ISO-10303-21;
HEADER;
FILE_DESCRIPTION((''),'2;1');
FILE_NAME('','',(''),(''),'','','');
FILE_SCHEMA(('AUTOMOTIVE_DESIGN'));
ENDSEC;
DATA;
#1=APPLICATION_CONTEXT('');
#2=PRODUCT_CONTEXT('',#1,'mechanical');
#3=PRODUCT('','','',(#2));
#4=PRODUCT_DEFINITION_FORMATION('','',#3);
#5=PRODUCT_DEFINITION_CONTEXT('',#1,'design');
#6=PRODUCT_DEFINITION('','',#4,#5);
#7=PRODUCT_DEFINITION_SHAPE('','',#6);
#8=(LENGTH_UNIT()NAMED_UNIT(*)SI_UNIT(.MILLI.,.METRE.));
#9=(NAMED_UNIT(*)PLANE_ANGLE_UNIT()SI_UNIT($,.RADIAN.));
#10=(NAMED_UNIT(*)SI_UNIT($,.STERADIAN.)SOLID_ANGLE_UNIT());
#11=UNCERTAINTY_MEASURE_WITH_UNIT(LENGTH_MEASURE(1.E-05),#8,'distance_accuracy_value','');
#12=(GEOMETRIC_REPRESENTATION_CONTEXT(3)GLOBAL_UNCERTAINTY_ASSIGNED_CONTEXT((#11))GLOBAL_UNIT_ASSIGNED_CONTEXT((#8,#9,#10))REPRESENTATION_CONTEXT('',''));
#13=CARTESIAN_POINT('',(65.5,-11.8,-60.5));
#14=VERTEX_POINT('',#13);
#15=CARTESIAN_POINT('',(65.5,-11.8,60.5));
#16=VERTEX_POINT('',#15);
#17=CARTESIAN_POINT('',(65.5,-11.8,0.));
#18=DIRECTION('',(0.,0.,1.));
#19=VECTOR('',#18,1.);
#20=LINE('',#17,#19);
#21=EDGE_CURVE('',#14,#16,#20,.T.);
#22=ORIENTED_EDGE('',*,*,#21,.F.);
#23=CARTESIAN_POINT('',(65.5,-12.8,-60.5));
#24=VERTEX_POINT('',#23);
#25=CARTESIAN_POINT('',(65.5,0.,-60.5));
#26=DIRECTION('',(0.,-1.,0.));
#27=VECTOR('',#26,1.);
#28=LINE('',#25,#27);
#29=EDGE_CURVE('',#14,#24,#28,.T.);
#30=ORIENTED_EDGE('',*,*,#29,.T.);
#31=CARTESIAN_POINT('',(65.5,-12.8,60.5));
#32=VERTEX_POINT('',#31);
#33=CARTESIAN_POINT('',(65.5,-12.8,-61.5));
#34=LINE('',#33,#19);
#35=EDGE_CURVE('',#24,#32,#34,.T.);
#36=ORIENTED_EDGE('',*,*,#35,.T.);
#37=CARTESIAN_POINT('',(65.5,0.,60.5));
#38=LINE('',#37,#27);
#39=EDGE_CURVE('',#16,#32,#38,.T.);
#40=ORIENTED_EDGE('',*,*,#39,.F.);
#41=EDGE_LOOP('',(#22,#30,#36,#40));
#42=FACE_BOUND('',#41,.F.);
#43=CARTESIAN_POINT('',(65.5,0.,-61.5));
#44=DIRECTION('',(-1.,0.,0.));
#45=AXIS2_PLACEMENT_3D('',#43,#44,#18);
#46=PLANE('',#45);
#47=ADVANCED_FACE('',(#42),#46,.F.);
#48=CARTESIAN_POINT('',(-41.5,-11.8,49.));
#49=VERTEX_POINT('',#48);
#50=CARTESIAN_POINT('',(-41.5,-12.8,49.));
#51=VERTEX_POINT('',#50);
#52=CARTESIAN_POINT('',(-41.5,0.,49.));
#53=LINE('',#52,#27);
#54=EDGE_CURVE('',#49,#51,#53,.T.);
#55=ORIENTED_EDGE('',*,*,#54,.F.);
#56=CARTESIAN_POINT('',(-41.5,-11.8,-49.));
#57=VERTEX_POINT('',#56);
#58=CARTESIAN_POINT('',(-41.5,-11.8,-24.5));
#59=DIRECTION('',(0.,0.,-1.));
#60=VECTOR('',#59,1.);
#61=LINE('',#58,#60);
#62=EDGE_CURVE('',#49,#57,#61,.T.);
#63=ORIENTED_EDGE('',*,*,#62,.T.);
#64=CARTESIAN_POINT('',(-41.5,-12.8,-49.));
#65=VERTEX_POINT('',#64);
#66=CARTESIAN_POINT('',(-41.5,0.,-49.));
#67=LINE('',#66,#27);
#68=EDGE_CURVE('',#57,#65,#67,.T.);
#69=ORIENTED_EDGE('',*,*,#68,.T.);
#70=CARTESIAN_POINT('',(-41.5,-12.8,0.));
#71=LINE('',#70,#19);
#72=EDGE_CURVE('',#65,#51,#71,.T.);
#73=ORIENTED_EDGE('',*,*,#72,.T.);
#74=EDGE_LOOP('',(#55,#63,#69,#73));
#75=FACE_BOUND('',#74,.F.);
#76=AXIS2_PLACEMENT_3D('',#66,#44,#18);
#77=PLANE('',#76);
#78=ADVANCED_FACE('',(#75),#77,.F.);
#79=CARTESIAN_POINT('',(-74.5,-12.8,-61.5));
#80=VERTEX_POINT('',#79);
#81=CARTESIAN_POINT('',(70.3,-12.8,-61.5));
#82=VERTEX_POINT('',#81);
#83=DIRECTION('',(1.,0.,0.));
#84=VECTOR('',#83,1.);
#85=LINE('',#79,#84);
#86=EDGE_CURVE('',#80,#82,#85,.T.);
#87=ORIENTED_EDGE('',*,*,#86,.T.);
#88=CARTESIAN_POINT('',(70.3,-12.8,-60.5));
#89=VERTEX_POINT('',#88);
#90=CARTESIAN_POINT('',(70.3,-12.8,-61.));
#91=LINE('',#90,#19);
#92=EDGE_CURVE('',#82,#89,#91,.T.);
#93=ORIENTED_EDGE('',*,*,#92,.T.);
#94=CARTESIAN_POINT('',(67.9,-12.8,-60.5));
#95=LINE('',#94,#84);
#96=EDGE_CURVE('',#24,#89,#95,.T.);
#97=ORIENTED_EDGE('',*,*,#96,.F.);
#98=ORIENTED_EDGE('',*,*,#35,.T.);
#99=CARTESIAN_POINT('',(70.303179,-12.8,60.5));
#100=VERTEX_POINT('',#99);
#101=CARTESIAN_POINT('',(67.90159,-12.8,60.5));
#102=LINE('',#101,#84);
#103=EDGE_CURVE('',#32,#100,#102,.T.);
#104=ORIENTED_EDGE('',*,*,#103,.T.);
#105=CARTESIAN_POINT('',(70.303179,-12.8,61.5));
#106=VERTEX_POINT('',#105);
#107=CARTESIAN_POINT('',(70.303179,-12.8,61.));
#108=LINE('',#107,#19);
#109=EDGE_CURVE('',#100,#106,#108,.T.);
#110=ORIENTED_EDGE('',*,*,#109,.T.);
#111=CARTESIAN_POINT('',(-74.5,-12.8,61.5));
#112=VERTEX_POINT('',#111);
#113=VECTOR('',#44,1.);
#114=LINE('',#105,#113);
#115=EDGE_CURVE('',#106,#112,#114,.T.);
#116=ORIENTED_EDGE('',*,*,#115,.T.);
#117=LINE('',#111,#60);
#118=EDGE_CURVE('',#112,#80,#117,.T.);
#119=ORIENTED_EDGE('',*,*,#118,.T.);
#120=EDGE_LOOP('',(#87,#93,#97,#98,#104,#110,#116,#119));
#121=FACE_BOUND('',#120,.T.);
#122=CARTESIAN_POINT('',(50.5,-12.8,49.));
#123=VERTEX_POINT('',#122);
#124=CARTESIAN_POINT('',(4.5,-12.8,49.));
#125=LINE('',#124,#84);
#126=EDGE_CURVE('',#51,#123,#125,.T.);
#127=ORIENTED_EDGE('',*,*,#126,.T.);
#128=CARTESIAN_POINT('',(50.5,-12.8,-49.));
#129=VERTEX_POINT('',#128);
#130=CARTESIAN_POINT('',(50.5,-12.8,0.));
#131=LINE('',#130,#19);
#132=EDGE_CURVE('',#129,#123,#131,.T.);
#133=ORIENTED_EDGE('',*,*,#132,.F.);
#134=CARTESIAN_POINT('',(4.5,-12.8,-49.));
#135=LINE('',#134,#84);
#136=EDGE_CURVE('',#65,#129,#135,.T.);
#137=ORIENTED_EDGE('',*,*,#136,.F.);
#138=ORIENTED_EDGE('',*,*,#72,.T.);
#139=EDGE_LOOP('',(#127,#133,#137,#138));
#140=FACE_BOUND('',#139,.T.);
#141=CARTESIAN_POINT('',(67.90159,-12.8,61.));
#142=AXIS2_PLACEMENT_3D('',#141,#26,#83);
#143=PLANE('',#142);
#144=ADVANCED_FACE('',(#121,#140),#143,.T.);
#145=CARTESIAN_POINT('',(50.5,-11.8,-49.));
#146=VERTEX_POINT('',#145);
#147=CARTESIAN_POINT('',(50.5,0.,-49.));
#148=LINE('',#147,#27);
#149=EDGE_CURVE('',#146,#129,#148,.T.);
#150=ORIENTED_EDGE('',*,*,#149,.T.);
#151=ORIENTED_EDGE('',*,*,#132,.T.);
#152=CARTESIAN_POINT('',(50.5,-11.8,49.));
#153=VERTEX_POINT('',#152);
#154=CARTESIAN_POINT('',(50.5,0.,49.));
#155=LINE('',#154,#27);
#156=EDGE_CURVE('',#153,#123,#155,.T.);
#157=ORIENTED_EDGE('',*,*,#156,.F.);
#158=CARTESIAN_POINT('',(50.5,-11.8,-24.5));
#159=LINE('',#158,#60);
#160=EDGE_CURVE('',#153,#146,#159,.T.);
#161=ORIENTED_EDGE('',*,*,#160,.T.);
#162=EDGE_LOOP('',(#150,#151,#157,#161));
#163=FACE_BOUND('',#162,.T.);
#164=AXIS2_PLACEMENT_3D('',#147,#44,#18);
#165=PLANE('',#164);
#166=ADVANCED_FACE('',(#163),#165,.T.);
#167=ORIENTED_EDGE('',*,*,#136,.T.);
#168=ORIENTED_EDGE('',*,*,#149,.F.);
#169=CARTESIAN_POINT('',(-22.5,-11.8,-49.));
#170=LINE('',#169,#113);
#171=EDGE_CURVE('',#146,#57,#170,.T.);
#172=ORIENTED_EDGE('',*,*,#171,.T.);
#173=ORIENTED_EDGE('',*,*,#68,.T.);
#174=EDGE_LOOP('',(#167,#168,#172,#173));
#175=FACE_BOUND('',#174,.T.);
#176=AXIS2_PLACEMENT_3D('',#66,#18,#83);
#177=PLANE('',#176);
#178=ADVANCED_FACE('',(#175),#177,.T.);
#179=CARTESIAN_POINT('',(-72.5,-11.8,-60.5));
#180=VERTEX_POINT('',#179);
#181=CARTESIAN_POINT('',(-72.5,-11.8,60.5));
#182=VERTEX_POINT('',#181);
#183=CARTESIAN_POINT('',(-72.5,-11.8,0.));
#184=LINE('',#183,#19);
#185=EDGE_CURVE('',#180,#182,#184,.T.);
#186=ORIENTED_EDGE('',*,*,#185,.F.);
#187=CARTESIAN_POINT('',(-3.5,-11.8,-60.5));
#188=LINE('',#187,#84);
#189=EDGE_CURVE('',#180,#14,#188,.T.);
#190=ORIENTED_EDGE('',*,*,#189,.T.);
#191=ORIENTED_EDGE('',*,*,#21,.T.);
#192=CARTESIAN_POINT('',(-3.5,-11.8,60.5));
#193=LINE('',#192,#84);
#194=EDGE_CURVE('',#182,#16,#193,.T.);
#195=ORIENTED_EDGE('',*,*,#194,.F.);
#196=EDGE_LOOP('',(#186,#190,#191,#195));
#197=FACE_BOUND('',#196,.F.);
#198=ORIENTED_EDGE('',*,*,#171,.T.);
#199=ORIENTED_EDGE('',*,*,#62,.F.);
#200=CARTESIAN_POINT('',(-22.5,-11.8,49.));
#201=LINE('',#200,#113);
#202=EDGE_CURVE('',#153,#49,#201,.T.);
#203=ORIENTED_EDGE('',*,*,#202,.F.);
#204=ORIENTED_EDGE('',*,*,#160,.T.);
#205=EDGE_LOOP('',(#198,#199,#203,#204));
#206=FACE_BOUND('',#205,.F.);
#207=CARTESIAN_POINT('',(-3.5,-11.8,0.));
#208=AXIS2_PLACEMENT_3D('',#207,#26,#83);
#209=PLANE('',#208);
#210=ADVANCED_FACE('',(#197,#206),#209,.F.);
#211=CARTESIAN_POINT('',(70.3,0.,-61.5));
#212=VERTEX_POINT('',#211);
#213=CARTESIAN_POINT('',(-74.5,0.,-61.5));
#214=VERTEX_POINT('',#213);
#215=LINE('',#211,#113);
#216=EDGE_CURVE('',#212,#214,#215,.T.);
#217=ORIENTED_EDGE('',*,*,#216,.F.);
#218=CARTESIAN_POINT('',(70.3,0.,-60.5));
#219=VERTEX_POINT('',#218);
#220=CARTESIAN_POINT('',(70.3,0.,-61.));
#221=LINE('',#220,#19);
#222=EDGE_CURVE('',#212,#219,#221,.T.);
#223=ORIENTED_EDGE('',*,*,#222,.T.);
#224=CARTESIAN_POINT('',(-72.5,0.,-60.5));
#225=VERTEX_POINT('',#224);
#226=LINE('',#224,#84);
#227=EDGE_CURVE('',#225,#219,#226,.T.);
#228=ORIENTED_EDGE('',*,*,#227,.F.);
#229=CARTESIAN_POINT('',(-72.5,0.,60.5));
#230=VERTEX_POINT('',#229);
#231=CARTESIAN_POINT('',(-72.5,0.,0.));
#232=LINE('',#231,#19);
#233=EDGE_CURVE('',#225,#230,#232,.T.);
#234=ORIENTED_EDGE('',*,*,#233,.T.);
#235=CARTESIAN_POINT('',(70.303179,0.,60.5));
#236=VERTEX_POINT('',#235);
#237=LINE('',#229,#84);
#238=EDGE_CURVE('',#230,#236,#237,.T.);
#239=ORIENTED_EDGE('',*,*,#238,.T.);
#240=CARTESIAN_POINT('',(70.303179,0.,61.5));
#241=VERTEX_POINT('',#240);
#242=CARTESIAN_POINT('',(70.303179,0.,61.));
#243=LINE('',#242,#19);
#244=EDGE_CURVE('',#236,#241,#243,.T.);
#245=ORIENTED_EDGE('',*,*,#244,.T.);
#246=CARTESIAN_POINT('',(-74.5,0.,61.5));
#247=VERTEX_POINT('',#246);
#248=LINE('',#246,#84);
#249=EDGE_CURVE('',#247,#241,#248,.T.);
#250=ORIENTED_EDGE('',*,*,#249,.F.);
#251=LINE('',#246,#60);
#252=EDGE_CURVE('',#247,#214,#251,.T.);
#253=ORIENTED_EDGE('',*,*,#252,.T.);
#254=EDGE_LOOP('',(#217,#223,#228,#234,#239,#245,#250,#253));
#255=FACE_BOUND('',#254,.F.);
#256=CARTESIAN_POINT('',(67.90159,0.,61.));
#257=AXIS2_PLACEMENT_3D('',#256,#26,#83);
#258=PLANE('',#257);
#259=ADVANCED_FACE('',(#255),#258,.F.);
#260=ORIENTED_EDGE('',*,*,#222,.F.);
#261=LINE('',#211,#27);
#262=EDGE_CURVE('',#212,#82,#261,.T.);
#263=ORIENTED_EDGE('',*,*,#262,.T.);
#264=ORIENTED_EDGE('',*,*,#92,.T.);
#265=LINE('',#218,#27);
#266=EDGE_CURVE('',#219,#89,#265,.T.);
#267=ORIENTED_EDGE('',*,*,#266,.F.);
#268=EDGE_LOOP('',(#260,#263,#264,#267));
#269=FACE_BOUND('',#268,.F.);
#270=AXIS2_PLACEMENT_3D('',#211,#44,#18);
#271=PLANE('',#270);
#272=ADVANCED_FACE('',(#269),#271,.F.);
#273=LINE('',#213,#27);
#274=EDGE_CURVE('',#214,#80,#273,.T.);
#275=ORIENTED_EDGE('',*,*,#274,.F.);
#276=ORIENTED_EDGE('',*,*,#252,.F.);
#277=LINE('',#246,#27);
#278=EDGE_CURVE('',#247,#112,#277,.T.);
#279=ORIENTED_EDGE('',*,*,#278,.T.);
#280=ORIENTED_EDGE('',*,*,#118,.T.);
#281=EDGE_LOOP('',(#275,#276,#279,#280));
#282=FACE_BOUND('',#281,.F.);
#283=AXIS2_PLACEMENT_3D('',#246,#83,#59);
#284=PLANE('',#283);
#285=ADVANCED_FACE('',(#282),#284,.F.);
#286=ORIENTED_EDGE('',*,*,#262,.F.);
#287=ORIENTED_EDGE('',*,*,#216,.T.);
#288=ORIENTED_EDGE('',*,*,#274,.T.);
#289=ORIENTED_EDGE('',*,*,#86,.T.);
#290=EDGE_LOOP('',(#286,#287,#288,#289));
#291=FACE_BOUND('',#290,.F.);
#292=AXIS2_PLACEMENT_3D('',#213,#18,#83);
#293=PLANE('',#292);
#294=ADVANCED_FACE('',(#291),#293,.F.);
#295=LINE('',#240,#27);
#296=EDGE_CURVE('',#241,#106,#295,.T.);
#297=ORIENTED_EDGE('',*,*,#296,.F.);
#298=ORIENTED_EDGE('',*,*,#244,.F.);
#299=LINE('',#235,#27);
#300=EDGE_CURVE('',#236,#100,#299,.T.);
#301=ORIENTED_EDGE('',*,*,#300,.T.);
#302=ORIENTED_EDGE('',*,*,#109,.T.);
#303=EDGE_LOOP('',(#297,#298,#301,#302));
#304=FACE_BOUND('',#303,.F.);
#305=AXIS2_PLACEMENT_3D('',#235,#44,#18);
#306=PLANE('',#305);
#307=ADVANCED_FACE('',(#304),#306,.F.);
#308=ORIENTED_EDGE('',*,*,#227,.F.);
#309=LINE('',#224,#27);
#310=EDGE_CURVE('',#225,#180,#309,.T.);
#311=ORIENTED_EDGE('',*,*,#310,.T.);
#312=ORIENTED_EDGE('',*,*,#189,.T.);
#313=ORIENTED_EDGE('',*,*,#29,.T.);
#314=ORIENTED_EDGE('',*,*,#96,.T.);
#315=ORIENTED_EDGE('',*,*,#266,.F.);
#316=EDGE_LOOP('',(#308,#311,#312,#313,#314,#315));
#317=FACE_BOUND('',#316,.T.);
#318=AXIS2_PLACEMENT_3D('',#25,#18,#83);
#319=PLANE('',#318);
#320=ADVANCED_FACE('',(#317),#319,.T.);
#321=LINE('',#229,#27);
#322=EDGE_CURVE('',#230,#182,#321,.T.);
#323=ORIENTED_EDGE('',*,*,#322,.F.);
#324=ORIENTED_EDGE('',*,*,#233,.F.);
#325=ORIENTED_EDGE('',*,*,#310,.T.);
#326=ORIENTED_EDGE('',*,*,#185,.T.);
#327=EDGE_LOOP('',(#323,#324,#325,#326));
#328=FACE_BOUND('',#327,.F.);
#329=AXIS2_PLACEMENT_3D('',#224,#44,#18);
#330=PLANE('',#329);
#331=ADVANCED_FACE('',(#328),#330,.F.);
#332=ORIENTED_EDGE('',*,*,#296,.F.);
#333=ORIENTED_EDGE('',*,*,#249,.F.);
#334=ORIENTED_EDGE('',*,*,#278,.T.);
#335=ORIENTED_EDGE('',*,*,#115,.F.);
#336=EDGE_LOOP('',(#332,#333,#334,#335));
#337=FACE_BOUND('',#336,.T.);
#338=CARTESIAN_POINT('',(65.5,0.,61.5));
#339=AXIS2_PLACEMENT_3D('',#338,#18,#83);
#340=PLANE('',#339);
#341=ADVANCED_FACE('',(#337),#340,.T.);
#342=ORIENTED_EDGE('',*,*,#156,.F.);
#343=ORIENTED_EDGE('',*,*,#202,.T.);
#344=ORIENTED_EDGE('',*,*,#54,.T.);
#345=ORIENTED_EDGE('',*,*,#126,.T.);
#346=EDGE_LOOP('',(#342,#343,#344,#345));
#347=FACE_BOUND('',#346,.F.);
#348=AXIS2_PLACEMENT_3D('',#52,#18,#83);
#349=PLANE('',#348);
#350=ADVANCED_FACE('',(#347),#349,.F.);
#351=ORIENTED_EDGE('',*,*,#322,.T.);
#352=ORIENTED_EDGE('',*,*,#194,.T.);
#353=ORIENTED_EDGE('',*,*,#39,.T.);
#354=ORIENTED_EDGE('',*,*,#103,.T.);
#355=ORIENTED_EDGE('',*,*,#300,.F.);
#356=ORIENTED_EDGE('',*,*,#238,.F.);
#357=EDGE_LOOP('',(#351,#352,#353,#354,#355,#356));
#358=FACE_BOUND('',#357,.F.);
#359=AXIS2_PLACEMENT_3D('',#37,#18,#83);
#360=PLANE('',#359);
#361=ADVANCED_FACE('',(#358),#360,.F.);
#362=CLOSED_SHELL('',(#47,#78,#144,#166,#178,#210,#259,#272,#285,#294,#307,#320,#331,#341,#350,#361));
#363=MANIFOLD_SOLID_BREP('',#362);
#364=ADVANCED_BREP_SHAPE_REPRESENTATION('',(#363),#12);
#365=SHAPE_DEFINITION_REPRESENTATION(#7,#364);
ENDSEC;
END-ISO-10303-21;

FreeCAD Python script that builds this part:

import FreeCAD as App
import Part
import Sketcher

doc = App.newDocument("Part")
body = doc.addObject("PartDesign::Body", "Body")

# Sketch on XZ plane
sketch1 = doc.addObject("Sketcher::SketchObject", "Sketch")
body.addObject(sketch1)
sketch1.AttachmentSupport = (doc.XZ_Plane, [""])
sketch1.MapMode = "FlatFace"
sketch1.addGeometry([
    Part.LineSegment(App.Vector(66, 62, 0), App.Vector(-74, 62, 0)),
    Part.LineSegment(App.Vector(-74, 62, 0), App.Vector(-74, -62, 0)),
    Part.LineSegment(App.Vector(-74, -62, 0), App.Vector(66, -62, 0)),
    Part.LineSegment(App.Vector(66, -62, 0), App.Vector(66, 62, 0)),
], False)
sketch1.addConstraint([
    Sketcher.Constraint("Coincident", 0, 2, 1, 1),
    Sketcher.Constraint("Coincident", 1, 2, 2, 1),
    Sketcher.Constraint("Coincident", 2, 2, 3, 1),
    Sketcher.Constraint("Coincident", 3, 2, 0, 1),
    Sketcher.Constraint("Horizontal", 0),
    Sketcher.Constraint("Vertical", 1),
    Sketcher.Constraint("Horizontal", 2),
    Sketcher.Constraint("Vertical", 3),
    Sketcher.Constraint("DistanceX", 0, 2, 0, 1, 140.0),
    Sketcher.Constraint("DistanceY", 1, 2, 1, 1, 123.0),
    Sketcher.Constraint("DistanceX", 0, 2, -1, 1, 74.5),
    Sketcher.Constraint("DistanceY", -1, 1, 0, 2, 61.5),
])
pad1 = doc.addObject("PartDesign::Pad", "Pad")
body.addObject(pad1)
pad1.Profile = sketch1
pad1.Length = 12.8

# Sketch on XZ plane
sketch2 = doc.addObject("Sketcher::SketchObject", "Sketch001")
body.addObject(sketch2)
sketch2.AttachmentSupport = (doc.XZ_Plane, [""])
sketch2.MapMode = "FlatFace"
sketch2.addGeometry([
    Part.LineSegment(App.Vector(-72, 60, 0), App.Vector(-72, -60, 0)),
    Part.LineSegment(App.Vector(-72, -60, 0), App.Vector(66, -60, 0)),
    Part.LineSegment(App.Vector(66, -60, 0), App.Vector(66, 60, 0)),
    Part.LineSegment(App.Vector(66, 60, 0), App.Vector(-72, 60, 0)),
], False)
sketch2.addConstraint([
    Sketcher.Constraint("Coincident", 0, 2, 1, 1),
    Sketcher.Constraint("Coincident", 1, 2, 2, 1),
    Sketcher.Constraint("Coincident", 2, 2, 3, 1),
    Sketcher.Constraint("Coincident", 3, 2, 0, 1),
    Sketcher.Constraint("Vertical", 0),
    Sketcher.Constraint("Horizontal", 1),
    Sketcher.Constraint("Vertical", 2),
    Sketcher.Constraint("Horizontal", 3),
    Sketcher.Constraint("DistanceX", 1, 1, 1, 2, 138.0),
    Sketcher.Constraint("DistanceY", 0, 2, 0, 1, 121.0),
    Sketcher.Constraint("DistanceX", 0, 2, -1, 1, 72.5),
    Sketcher.Constraint("DistanceY", 0, 2, -1, 1, 60.5),
])
pocket1 = doc.addObject("PartDesign::Pocket", "Pocket")
body.addObject(pocket1)
pocket1.Profile = sketch2
pocket1.Length = 11.8
pocket1.Reversed = True

# Sketch on XZ plane
sketch3 = doc.addObject("Sketcher::SketchObject", "Sketch002")
body.addObject(sketch3)
sketch3.AttachmentSupport = (doc.XZ_Plane, [""])
sketch3.MapMode = "FlatFace"
sketch3.addGeometry([
    Part.LineSegment(App.Vector(-42, 49, 0), App.Vector(-42, -49, 0)),
    Part.LineSegment(App.Vector(-42, -49, 0), App.Vector(50, -49, 0)),
    Part.LineSegment(App.Vector(50, -49, 0), App.Vector(50, 49, 0)),
    Part.LineSegment(App.Vector(50, 49, 0), App.Vector(-42, 49, 0)),
], False)
sketch3.addConstraint([
    Sketcher.Constraint("Coincident", 0, 2, 1, 1),
    Sketcher.Constraint("Coincident", 1, 2, 2, 1),
    Sketcher.Constraint("Coincident", 2, 2, 3, 1),
    Sketcher.Constraint("Coincident", 3, 2, 0, 1),
    Sketcher.Constraint("Vertical", 0),
    Sketcher.Constraint("Horizontal", 1),
    Sketcher.Constraint("Vertical", 2),
    Sketcher.Constraint("Horizontal", 3),
    Sketcher.Constraint("DistanceX", 1, 1, 1, 2, 92.0),
    Sketcher.Constraint("DistanceY", 0, 2, 0, 1, 98.0),
    Sketcher.Constraint("DistanceY", 0, 2, -1, 1, 49.0),
    Sketcher.Constraint("DistanceX", 0, 2, -1, 1, 41.5),
])
pocket2 = doc.addObject("PartDesign::Pocket", "Pocket001")
body.addObject(pocket2)
pocket2.Profile = sketch3
pocket2.Length = 12.8
pocket2.Reversed = True

# Sketch on XZ plane
sketch4 = doc.addObject("Sketcher::SketchObject", "Sketch003")
body.addObject(sketch4)
sketch4.AttachmentSupport = (doc.XZ_Plane, [""])
sketch4.MapMode = "FlatFace"
sketch4.addGeometry([
    Part.LineSegment(App.Vector(65.5, 61.5, 0), App.Vector(65.5, 60.5, 0)),  # 0
    Part.LineSegment(App.Vector(65.5, 60.5, 0), App.Vector(70.3, 60.5, 0)),  # 1
    Part.LineSegment(App.Vector(70.3, 60.5, 0), App.Vector(70.3, 61.5, 0)),  # 2
    Part.LineSegment(App.Vector(70.3, 61.5, 0), App.Vector(65.5, 61.5, 0)),  # 3
    Part.LineSegment(App.Vector(65.5, -60.5, 0), App.Vector(65.5, -61.5, 0)),  # 4
    Part.LineSegment(App.Vector(65.5, -61.5, 0), App.Vector(70.3, -61.5, 0)),  # 5
    Part.LineSegment(App.Vector(70.3, -61.5, 0), App.Vector(70.3, -60.5, 0)),  # 6
    Part.LineSegment(App.Vector(70.3, -60.5, 0), App.Vector(65.5, -60.5, 0)),  # 7
], False)
sketch4.addConstraint([
    Sketcher.Constraint("Coincident", 0, 2, 1, 1),
    Sketcher.Constraint("Coincident", 1, 2, 2, 1),
    Sketcher.Constraint("Coincident", 2, 2, 3, 1),
    Sketcher.Constraint("Coincident", 3, 2, 0, 1),
    Sketcher.Constraint("Coincident", 4, 2, 5, 1),
    Sketcher.Constraint("Coincident", 5, 2, 6, 1),
    Sketcher.Constraint("Coincident", 6, 2, 7, 1),
    Sketcher.Constraint("Coincident", 7, 2, 4, 1),
    Sketcher.Constraint("Vertical", 0),
    Sketcher.Constraint("Horizontal", 1),
    Sketcher.Constraint("Vertical", 2),
    Sketcher.Constraint("Horizontal", 3),
    Sketcher.Constraint("Vertical", 4),
    Sketcher.Constraint("Horizontal", 5),
    Sketcher.Constraint("Vertical", 6),
    Sketcher.Constraint("Horizontal", 7),
    Sketcher.Constraint("Symmetric", 3, 2, 4, 2, -1),
    Sketcher.Constraint("Equal", 2, 4),
    Sketcher.Constraint("DistanceY", 0, 2, 0, 1, 1.0),
    Sketcher.Constraint("DistanceX", 5, 1, 5, 2, 4.8),
    Sketcher.Constraint("DistanceY", 4, 2, 0, 2, 122.0),
    Sketcher.Constraint("DistanceX", -1, 1, 0, 2, 65.5),
    Sketcher.Constraint("DistanceX", 1, 1, 1, 2, 4.803179),
])
pad2 = doc.addObject("PartDesign::Pad", "Pad001")
body.addObject(pad2)
pad2.Profile = sketch4
pad2.Length = 12.8

doc.recompute()
